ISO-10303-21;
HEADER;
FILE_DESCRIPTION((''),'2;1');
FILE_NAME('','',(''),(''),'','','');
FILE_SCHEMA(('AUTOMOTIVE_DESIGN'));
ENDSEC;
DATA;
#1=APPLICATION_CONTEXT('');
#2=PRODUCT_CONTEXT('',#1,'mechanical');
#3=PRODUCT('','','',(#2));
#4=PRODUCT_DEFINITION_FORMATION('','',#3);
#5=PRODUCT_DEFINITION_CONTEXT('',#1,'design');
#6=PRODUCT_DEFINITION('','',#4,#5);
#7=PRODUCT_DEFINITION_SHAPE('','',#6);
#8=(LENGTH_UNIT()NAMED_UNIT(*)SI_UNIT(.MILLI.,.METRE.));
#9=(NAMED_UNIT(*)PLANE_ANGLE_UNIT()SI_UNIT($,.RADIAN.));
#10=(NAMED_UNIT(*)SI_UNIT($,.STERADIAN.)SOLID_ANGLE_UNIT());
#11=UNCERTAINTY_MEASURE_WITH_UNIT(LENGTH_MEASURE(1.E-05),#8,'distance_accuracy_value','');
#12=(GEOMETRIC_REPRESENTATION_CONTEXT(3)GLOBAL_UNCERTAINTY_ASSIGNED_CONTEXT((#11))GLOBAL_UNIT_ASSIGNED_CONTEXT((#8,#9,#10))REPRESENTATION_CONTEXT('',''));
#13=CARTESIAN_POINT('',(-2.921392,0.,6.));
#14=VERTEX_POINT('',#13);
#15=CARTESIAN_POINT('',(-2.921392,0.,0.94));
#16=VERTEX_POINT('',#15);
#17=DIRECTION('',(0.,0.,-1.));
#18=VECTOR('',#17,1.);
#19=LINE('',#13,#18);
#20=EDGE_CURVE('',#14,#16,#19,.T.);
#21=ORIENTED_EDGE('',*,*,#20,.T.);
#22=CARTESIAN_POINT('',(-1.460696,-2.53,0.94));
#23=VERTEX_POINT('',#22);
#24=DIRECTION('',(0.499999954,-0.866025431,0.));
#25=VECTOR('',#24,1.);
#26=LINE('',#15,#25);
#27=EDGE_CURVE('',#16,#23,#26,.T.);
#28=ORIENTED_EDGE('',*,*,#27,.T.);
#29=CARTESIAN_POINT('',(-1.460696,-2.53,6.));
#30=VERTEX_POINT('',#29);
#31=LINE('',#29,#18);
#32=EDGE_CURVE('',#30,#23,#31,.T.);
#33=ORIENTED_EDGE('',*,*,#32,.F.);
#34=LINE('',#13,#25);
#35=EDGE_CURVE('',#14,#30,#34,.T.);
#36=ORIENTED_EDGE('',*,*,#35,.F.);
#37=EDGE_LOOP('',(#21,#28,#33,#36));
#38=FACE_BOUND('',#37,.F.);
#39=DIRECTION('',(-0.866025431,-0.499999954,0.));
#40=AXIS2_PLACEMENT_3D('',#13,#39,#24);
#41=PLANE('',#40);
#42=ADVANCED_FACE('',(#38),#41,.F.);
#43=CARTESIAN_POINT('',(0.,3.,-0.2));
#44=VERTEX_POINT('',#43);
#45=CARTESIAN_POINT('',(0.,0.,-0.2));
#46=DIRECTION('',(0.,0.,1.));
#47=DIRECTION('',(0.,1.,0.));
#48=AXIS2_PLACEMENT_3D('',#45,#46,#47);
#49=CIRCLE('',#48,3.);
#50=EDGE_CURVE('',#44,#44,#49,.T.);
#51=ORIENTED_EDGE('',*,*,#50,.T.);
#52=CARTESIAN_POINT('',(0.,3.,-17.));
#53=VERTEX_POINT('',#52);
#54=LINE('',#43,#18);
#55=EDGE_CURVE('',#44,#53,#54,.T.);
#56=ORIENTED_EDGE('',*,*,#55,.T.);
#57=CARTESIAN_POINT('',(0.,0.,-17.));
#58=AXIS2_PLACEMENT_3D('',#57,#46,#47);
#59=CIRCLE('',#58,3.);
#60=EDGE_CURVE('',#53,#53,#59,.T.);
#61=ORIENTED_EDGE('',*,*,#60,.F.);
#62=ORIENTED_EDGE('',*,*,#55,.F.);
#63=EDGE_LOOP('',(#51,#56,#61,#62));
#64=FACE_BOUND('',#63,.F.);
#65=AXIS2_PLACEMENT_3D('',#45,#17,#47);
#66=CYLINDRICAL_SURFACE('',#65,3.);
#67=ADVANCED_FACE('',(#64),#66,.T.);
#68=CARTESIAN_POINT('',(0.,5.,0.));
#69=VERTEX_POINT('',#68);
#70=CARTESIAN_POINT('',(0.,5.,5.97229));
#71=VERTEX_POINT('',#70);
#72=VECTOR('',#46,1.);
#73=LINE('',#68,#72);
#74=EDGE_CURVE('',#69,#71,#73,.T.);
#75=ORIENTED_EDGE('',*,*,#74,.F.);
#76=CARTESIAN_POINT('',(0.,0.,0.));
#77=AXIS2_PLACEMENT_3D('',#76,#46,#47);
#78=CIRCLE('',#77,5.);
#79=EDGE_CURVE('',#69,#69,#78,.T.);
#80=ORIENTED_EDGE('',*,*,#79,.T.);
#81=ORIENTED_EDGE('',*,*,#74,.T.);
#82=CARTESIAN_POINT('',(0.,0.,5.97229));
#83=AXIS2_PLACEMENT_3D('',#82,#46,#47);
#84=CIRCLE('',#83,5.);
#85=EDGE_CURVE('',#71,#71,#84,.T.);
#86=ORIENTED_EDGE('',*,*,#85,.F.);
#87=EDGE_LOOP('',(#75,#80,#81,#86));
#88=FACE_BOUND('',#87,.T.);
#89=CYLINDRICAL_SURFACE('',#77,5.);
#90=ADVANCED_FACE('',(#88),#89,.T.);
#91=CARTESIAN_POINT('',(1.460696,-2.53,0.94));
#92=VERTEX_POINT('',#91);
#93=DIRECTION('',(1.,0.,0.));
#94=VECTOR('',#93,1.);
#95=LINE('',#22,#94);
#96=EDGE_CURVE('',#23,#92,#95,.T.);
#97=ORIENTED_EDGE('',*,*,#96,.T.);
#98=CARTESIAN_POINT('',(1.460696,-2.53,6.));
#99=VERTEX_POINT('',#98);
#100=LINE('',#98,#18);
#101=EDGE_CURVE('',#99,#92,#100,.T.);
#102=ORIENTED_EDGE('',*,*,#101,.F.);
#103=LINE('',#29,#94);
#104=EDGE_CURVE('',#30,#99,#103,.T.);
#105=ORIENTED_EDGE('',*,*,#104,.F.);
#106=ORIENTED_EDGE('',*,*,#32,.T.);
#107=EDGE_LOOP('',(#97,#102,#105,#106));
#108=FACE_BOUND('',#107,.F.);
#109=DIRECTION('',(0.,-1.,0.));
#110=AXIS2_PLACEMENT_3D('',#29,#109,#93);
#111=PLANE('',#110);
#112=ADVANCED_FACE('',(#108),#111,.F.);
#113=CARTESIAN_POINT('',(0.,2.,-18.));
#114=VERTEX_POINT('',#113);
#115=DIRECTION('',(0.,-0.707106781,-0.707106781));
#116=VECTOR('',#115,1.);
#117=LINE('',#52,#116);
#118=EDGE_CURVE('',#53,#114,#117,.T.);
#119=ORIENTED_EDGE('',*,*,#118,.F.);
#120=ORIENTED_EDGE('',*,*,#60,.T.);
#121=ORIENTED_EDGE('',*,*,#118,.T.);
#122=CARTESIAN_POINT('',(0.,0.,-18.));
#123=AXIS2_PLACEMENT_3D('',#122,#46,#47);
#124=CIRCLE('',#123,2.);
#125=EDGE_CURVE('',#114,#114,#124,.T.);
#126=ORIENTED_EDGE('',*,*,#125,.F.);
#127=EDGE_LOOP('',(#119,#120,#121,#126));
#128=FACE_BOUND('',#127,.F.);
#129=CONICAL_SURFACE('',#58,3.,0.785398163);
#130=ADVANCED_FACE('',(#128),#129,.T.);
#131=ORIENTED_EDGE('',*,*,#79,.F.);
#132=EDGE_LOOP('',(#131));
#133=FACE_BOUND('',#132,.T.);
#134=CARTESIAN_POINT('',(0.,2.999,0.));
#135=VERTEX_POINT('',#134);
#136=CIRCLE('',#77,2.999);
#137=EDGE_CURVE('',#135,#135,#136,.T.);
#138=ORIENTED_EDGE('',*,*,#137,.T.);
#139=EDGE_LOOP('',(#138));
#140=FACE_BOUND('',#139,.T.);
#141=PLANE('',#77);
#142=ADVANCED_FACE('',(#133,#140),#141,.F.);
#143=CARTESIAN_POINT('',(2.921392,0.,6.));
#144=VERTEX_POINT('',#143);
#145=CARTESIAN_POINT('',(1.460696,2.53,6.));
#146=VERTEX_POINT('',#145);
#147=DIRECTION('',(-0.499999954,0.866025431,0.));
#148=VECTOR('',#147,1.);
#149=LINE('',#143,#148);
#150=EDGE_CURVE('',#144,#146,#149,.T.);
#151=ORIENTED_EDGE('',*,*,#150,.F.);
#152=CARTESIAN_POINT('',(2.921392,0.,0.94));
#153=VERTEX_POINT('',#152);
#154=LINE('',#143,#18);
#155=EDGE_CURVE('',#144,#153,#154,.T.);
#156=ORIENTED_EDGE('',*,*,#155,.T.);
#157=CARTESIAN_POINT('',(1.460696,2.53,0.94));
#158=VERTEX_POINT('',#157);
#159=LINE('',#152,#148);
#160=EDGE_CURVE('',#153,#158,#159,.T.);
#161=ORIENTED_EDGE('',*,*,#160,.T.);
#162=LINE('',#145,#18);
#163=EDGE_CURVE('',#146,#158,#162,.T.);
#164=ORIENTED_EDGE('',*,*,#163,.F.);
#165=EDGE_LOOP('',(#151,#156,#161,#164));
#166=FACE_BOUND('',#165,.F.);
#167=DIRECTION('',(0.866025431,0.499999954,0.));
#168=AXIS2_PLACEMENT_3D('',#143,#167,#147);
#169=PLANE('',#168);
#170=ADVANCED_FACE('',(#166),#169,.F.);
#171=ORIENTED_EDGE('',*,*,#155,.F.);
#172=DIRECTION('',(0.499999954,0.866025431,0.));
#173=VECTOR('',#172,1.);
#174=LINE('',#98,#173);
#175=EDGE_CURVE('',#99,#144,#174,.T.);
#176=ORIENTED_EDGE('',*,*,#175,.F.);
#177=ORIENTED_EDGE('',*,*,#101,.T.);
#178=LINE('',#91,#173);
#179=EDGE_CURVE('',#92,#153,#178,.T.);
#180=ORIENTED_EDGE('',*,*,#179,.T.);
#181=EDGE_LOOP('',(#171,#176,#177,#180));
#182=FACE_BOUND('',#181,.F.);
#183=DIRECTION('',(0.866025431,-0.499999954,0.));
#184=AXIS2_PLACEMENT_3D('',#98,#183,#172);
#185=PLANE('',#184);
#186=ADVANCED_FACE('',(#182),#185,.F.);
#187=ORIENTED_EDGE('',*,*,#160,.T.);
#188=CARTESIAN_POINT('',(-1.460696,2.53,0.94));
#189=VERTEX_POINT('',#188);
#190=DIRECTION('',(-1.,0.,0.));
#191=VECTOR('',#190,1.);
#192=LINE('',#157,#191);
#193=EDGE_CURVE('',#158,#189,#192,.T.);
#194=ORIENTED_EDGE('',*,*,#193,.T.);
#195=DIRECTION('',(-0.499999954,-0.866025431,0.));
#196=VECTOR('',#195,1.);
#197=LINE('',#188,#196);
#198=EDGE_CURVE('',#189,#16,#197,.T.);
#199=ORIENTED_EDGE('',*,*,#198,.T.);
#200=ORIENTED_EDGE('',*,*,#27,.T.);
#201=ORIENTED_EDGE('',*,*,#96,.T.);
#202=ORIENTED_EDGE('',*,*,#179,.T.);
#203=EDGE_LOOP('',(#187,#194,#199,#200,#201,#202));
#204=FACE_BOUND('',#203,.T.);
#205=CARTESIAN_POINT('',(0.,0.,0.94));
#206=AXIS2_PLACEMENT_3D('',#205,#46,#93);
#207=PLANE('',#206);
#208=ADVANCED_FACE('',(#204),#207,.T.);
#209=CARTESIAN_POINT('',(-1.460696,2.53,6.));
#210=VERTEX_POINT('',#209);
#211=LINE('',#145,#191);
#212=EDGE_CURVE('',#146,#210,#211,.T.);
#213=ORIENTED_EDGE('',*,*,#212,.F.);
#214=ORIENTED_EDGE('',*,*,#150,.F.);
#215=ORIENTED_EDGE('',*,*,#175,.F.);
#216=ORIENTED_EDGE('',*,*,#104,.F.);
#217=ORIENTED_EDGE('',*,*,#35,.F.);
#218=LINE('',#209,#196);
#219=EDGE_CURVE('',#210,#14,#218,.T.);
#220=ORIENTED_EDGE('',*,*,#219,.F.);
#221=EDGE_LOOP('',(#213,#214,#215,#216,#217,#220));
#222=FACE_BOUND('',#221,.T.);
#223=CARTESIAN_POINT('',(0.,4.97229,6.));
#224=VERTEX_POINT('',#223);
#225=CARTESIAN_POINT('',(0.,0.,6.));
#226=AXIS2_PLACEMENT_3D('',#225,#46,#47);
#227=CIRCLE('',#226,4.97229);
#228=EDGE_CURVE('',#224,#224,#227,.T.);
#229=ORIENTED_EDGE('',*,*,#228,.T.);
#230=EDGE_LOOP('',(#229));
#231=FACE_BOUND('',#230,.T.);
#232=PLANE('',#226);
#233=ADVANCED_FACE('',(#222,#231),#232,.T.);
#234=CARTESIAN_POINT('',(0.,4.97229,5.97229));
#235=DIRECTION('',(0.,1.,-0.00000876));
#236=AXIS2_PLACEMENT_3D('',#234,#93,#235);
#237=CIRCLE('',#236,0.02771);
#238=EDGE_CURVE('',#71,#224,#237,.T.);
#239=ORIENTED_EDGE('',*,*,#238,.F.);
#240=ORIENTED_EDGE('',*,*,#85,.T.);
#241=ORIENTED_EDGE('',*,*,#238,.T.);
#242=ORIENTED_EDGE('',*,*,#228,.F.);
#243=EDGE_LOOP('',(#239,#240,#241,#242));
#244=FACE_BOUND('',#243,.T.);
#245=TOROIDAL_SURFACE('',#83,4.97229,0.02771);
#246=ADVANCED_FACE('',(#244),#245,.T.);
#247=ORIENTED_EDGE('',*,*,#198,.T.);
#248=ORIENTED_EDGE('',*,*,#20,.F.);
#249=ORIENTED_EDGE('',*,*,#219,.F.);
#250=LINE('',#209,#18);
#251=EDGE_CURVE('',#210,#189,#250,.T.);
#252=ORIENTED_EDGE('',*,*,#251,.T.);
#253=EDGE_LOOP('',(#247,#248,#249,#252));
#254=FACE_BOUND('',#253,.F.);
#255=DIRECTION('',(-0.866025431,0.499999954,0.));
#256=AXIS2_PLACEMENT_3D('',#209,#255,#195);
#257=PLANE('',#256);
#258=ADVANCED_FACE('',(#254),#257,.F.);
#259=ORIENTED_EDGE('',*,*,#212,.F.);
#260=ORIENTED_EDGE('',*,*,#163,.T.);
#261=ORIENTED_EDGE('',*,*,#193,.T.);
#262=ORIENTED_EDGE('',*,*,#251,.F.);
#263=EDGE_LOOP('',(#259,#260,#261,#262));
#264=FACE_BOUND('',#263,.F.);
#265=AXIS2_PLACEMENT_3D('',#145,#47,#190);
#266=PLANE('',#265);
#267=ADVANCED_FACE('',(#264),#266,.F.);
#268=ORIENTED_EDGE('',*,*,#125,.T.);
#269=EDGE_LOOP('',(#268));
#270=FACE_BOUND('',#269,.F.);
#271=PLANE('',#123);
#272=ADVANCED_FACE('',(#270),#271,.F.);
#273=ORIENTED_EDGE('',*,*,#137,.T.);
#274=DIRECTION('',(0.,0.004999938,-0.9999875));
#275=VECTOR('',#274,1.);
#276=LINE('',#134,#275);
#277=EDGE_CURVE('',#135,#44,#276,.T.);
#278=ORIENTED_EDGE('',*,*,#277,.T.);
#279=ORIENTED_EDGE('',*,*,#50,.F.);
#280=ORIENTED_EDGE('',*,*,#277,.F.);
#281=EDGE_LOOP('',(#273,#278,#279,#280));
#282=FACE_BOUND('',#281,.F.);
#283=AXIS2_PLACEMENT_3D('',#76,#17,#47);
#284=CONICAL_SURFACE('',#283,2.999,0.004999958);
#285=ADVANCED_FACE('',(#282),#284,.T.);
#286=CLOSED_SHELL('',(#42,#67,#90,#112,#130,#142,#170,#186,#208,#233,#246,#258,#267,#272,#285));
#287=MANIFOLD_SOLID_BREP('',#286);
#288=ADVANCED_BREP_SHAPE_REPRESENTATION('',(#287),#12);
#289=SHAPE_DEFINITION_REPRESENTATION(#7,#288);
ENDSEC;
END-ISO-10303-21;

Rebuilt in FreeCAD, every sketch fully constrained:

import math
import FreeCAD as App
import Part
import Sketcher
from FreeCAD import Vector
Q = App.Units.Quantity

doc = App.newDocument("Part")
params = doc.addObject("Spreadsheet::Sheet", "Params")
for row, (alias, value) in enumerate([
    ("sketch1_width", "2 mm"),
    ("sketch1_height", "24 mm"),
    ("sketch1_height2", "16.8 mm"),
    ("revolution_angle", "360 deg"),
    ("pocket1_length", "5.06 mm"),
], start=1):
    params.set(f"A{row}", alias)
    params.set(f"B{row}", "=" + value)
    params.setAlias(f"B{row}", alias)

body = doc.addObject("PartDesign::Body", "Body")

# Sketch on YZ plane
sketch1 = doc.addObject("Sketcher::SketchObject", "Sketch")
body.addObject(sketch1)
sketch1.AttachmentSupport = (doc.YZ_Plane, [""])
sketch1.MapMode = "FlatFace"
sketch1.addGeometry([
    Part.LineSegment(Vector(2.999, 0, 0), Vector(5, 0, 0)),  # 0
    Part.LineSegment(Vector(5, 0, 0), Vector(5, 5.972, 0)),  # 1
    Part.ArcOfCircle(Part.Circle(Vector(4.972, 5.972, 0), Vector(0, 0, 1), 0.028), math.radians(0), math.radians(90)),  # 2
    Part.LineSegment(Vector(4.972, 6, 0), Vector(0, 6, 0)),  # 3
    Part.LineSegment(Vector(0, 6, 0), Vector(0, -18, 0)),  # 4
    Part.LineSegment(Vector(0, -18, 0), Vector(2, -18, 0)),  # 5
    Part.LineSegment(Vector(2, -18, 0), Vector(3, -17, 0)),  # 6
    Part.LineSegment(Vector(3, -17, 0), Vector(3, -0.2, 0)),  # 7
    Part.LineSegment(Vector(3, -0.2, 0), Vector(2.999, 0, 0)),  # 8
], False)
sketch1.addConstraint([
    Sketcher.Constraint("Coincident", 0, 2, 1, 1),
    Sketcher.Constraint("Coincident", 1, 2, 2, 1),
    Sketcher.Constraint("Coincident", 2, 2, 3, 1),
    Sketcher.Constraint("Coincident", 3, 2, 4, 1),
    Sketcher.Constraint("Coincident", 4, 2, 5, 1),
    Sketcher.Constraint("Coincident", 5, 2, 6, 1),
    Sketcher.Constraint("Coincident", 6, 2, 7, 1),
    Sketcher.Constraint("Coincident", 7, 2, 8, 1),
    Sketcher.Constraint("Coincident", 8, 2, 0, 1),
    Sketcher.Constraint("Horizontal", 0),
    Sketcher.Constraint("Vertical", 1),
    Sketcher.Constraint("Horizontal", 3),
    Sketcher.Constraint("Vertical", 4),
    Sketcher.Constraint("Horizontal", 5),
    Sketcher.Constraint("Vertical", 7),
    Sketcher.Constraint("PointOnObject", 0, 2, -1),
    Sketcher.Constraint("PointOnObject", 3, 2, -2),
    Sketcher.Constraint("Horizontal", 2, 3, 1, 2),
    Sketcher.Constraint("DistanceX", 5, 1, 5, 2, 2.0),
    Sketcher.Constraint("DistanceY", 4, 2, 4, 1, 24.0),
    Sketcher.Constraint("Angle", 6, Q("45 deg")),
    Sketcher.Constraint("DistanceY", 7, 1, 7, 2, 16.8),
    Sketcher.Constraint("DistanceX", -1, 1, 0, 2, 5.0),
    Sketcher.Constraint("DistanceY", -1, 1, 2, 2, 6.0),
    Sketcher.Constraint("DistanceX", -1, 1, 6, 2, 3.0),
    Sketcher.Constraint("DistanceX", 0, 1, 0, 2, 2.001),
    Sketcher.Constraint("Radius", 2, 0.02771),
    Sketcher.Constraint("DistanceX", 3, 2, 3, 1, 4.97229),
])
sketch1.setExpression("Constraints[18]", "Params.sketch1_width")
sketch1.setExpression("Constraints[19]", "Params.sketch1_height")
sketch1.setExpression("Constraints[21]", "Params.sketch1_height2")
revolution = doc.addObject("PartDesign::Revolution", "Revolution")
body.addObject(revolution)
revolution.Profile = sketch1
revolution.ReferenceAxis = (sketch1, ["V_Axis"])
revolution.setExpression("Angle", "Params.revolution_angle")

# Sketch on XY plane
sketch2 = doc.addObject("Sketcher::SketchObject", "Sketch001")
body.addObject(sketch2)
sketch2.AttachmentSupport = (doc.XY_Plane, [""])
sketch2.MapMode = "FlatFace"
sketch2.AttachmentOffset = App.Placement(Vector(0, 0, 6), App.Rotation())
sketch2.addGeometry([
    Part.LineSegment(Vector(2.9, 0, 0), Vector(1.5, 2.5, 0)),  # 0
    Part.LineSegment(Vector(1.5, 2.5, 0), Vector(-1.5, 2.5, 0)),  # 1
    Part.LineSegment(Vector(-1.5, 2.5, 0), Vector(-2.9, 0, 0)),  # 2
    Part.LineSegment(Vector(-2.9, 0, 0), Vector(-1.5, -2.5, 0)),  # 3
    Part.LineSegment(Vector(-1.5, -2.5, 0), Vector(1.5, -2.5, 0)),  # 4
    Part.LineSegment(Vector(1.5, -2.5, 0), Vector(2.9, 0, 0)),  # 5
], False)
sketch2.addConstraint([
    Sketcher.Constraint("Coincident", 0, 2, 1, 1),
    Sketcher.Constraint("Coincident", 1, 2, 2, 1),
    Sketcher.Constraint("Coincident", 2, 2, 3, 1),
    Sketcher.Constraint("Coincident", 3, 2, 4, 1),
    Sketcher.Constraint("Coincident", 4, 2, 5, 1),
    Sketcher.Constraint("Coincident", 5, 2, 0, 1),
    Sketcher.Constraint("Horizontal", 1),
    Sketcher.Constraint("Horizontal", 4),
    Sketcher.Constraint("Symmetric", 0, 2, 3, 2, -1, 1),
    Sketcher.Constraint("Symmetric", 2, 2, 5, 2, -1, 1),
    Sketcher.Constraint("PointOnObject", 2, 2, -1),
    Sketcher.Constraint("Parallel", 2, 5),
    Sketcher.Constraint("Vertical", 1, 2, 3, 2),
    Sketcher.Constraint("Angle", 0, Q("119.999997 deg")),
    Sketcher.Constraint("DistanceY", -1, 1, 0, 2, 2.53),
    Sketcher.Constraint("DistanceX", 1, 2, 1, 1, 2.921392),
])
pocket1 = doc.addObject("PartDesign::Pocket", "Pocket")
body.addObject(pocket1)
pocket1.Profile = sketch2
pocket1.setExpression("Length", "Params.pocket1_length")

doc.recompute()
